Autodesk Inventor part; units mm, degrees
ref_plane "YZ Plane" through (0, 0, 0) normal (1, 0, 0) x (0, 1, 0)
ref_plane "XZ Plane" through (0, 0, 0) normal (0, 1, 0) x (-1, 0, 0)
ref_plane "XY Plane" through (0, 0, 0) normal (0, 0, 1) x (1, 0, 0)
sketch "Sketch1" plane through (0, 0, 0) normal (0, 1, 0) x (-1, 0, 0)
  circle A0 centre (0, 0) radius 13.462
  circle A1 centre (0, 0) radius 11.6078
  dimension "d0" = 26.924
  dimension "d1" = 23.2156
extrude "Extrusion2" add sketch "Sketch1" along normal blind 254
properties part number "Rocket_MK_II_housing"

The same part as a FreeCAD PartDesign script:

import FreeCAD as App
import Part
import Sketcher
from FreeCAD import Vector
Q = App.Units.Quantity

doc = App.newDocument("Part")
params = doc.addObject("Spreadsheet::Sheet", "Params")
for row, (alias, value) in enumerate([
    ("sketch1_diameter", "1.06 in"),
    ("sketch1_diameter2", "0.914 in"),
    ("pad1_length", "10 in"),
], start=1):
    params.set(f"A{row}", alias)
    params.set(f"B{row}", "=" + value)
    params.setAlias(f"B{row}", alias)

body = doc.addObject("PartDesign::Body", "Body")

sketch1 = body.newObject("Sketcher::SketchObject", "Sketch")
sketch1.AttachmentSupport = (doc.getObject("XZ_Plane"), [""])
sketch1.MapMode = "FlatFace"
sketch1.addGeometry(Part.Circle(Vector(0, 0, 0), Vector(0, 0, 1), 13), False)
sketch1.addGeometry(Part.Circle(Vector(0, 0, 0), Vector(0, 0, 1), 12), False)
sketch1.addConstraint(Sketcher.Constraint("Coincident", 0, 3, -1, 1))
sketch1.addConstraint(Sketcher.Constraint("Coincident", 1, 3, -1, 1))
sketch1.addConstraint(Sketcher.Constraint("Diameter", 0, Q("1.06 in")))
sketch1.addConstraint(Sketcher.Constraint("Diameter", 1, Q("0.914 in")))
sketch1.setExpression("Constraints[2]", "Params.sketch1_diameter")
sketch1.setExpression("Constraints[3]", "Params.sketch1_diameter2")
pad1 = body.newObject("PartDesign::Pad", "Pad")
pad1.Profile = sketch1
pad1.setExpression("Length", "Params.pad1_length")
pad1.Reversed = True

doc.recompute()
